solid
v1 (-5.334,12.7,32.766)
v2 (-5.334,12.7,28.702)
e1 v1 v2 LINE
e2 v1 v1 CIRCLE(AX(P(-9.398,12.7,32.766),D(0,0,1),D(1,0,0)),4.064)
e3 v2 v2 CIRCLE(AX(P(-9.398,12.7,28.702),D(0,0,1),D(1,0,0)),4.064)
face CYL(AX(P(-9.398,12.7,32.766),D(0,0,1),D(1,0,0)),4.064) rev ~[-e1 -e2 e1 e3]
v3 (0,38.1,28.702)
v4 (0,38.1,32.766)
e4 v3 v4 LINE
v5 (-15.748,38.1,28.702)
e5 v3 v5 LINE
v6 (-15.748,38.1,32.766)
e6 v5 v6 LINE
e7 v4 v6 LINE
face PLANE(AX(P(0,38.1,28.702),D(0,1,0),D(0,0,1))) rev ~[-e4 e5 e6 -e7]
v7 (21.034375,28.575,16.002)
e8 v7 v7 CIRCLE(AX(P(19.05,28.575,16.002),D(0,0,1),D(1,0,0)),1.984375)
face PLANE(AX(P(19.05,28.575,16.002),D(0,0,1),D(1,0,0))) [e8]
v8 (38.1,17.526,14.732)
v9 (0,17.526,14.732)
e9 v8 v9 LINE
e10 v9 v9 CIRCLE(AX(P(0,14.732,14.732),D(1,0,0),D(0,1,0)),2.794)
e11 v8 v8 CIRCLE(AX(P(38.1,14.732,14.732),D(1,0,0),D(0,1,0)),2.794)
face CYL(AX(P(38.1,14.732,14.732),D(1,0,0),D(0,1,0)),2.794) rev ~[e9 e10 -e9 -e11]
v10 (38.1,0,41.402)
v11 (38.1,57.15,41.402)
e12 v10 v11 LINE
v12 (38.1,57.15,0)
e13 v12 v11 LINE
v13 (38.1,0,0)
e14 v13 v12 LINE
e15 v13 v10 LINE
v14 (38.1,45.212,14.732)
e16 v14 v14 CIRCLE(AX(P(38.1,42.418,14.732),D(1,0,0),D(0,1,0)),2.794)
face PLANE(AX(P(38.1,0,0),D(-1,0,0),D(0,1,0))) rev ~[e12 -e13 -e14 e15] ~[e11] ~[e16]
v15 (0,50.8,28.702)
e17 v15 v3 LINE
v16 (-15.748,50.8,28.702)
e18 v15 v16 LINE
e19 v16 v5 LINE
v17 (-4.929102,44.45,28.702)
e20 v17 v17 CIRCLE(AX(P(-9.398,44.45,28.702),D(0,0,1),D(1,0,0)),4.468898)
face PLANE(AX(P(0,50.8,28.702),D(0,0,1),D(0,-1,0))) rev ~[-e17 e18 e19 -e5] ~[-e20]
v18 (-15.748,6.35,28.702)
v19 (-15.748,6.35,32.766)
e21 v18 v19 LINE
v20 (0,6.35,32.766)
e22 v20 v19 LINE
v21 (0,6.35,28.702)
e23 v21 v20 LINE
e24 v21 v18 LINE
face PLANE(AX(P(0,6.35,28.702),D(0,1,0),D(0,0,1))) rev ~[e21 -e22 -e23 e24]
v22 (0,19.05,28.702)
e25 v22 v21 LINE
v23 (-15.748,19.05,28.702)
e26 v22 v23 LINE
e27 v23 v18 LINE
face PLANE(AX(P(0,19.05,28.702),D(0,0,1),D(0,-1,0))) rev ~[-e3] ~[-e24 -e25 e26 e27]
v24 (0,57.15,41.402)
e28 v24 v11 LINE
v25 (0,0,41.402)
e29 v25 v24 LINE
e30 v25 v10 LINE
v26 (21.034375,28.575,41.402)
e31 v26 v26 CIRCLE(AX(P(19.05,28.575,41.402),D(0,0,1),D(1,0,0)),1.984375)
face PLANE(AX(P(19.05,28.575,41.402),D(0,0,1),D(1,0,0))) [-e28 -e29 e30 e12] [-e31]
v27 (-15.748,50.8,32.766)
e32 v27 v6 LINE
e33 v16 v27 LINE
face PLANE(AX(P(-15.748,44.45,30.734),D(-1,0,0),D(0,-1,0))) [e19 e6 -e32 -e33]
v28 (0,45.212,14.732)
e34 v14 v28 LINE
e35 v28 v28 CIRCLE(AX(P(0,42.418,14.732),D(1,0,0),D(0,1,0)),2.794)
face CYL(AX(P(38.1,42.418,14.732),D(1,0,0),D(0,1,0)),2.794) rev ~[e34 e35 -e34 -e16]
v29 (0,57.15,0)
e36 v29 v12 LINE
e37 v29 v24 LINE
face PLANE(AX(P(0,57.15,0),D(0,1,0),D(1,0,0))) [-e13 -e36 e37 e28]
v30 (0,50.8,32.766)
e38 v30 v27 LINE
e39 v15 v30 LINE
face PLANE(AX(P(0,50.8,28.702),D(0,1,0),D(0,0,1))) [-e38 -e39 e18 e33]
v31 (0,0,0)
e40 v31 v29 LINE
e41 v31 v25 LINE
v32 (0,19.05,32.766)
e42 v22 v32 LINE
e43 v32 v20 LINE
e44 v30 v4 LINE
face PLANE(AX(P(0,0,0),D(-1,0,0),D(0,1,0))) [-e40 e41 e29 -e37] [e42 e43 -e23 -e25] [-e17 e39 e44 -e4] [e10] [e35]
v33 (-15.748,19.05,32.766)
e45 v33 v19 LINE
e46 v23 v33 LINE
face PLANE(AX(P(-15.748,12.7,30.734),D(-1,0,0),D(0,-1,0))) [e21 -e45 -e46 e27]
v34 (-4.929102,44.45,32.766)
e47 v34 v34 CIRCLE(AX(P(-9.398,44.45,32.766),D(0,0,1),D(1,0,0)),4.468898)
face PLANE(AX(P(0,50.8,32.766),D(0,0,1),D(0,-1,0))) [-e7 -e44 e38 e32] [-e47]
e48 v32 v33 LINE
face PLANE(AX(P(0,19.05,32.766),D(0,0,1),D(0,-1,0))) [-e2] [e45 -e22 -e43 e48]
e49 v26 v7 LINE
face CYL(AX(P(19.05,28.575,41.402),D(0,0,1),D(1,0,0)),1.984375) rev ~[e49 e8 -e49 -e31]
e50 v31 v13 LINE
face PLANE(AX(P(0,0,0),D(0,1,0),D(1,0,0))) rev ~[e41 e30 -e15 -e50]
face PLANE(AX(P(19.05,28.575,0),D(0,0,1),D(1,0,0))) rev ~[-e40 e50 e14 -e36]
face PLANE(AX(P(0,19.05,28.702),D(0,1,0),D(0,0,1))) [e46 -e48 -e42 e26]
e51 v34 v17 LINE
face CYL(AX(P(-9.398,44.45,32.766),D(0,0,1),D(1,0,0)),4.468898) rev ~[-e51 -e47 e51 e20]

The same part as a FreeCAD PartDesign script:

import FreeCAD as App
import Part
import Sketcher

V = App.Vector
Q = App.Units.Quantity


def add_polygon(sketch, points):
    """Adds a closed chain of lines whose ends are joined by coincident constraints."""
    first, n = sketch.GeometryCount, len(points)
    for a, b in zip(points, points[1:] + points[:1]):
        sketch.addGeometry(Part.LineSegment(App.Vector(*a, 0), App.Vector(*b, 0)), False)
    for i in range(n):
        sketch.addConstraint(Sketcher.Constraint("Coincident", first + i, 2, first + (i + 1) % n, 1))

doc = App.newDocument("Part")
params = doc.addObject("Spreadsheet::Sheet", "Params")
for row, (alias, value) in enumerate([
    ("sketch1_width", "1.5 in"),
    ("sketch1_height", "2.25 in"),
    ("pad1_length", "1.63 in"),
    ("sketch2_diameter", "0.22 in"),
    ("sketch3_diameter", "0.15625 in"),
    ("pocket2_length", "1 in"),
    ("sketch4_width", "0.5 in"),
    ("sketch4_height", "0.16 in"),
    ("pad2_length", "0.62 in"),
    ("sketch5_diameter", "0.32 in"),
], start=1):
    params.set(f"A{row}", alias)
    params.set(f"B{row}", "=" + value)
    params.setAlias(f"B{row}", alias)

body = doc.addObject("PartDesign::Body", "Body")

sketch1 = body.newObject("Sketcher::SketchObject", "Sketch")
sketch1.AttachmentSupport = (doc.getObject("XY_Plane"), [""])
sketch1.MapMode = "FlatFace"
add_polygon(sketch1, [(0, 57), (0, 0), (38, 0), (38, 57)])
sketch1.addConstraint([
    Sketcher.Constraint("Vertical", 0),
    Sketcher.Constraint("Horizontal", 1),
    Sketcher.Constraint("Vertical", 2),
    Sketcher.Constraint("Horizontal", 3),
    Sketcher.Constraint("Coincident", 0, 2, -1, 1),
    Sketcher.Constraint("DistanceX", 1, 1, 1, 2, Q("1.5 in")),
    Sketcher.Constraint("DistanceY", 0, 2, 0, 1, Q("2.25 in")),
])
sketch1.setExpression("Constraints[9]", "Params.sketch1_width")
sketch1.setExpression("Constraints[10]", "Params.sketch1_height")
pad1 = body.newObject("PartDesign::Pad", "Pad")
pad1.Profile = sketch1
pad1.setExpression("Length", "Params.pad1_length")

sketch2 = body.newObject("Sketcher::SketchObject", "Sketch001")
sketch2.AttachmentSupport = (doc.getObject("YZ_Plane"), [""])
sketch2.MapMode = "FlatFace"
sketch2.AttachmentOffset = App.Placement(V(0, 0, 1.5 * 25.4), App.Rotation())
sketch2.addGeometry([
    Part.Circle(V(14.7, 14.7, 0), V(0, 0, 1), 2.8),
    Part.Circle(V(42.4, 14.7, 0), V(0, 0, 1), 2.8),
], False)
sketch2.addConstraint([
    Sketcher.Constraint("Equal", 0, 1),
    Sketcher.Constraint("Horizontal", 0, 3, 1, 3),
    Sketcher.Constraint("Diameter", 0, Q("0.22 in")),
    Sketcher.Constraint("DistanceX", -1, 1, 0, 3, Q("0.58 in")),
    Sketcher.Constraint("DistanceY", -1, 1, 0, 3, Q("0.58 in")),
    Sketcher.Constraint("DistanceX", -1, 1, 1, 3, Q("1.67 in")),
])
sketch2.setExpression("Constraints[2]", "Params.sketch2_diameter")
pocket1 = body.newObject("PartDesign::Pocket", "Pocket")
pocket1.Profile = sketch2
pocket1.Type = "ThroughAll"

sketch3 = body.newObject("Sketcher::SketchObject", "Sketch002")
sketch3.AttachmentSupport = (doc.getObject("XY_Plane"), [""])
sketch3.MapMode = "FlatFace"
sketch3.AttachmentOffset = App.Placement(V(0, 0, 1.63 * 25.4), App.Rotation())
sketch3.addGeometry(Part.Circle(V(19.1, 28.6, 0), V(0, 0, 1), 2), False)
sketch3.addConstraint([
    Sketcher.Constraint("Diameter", 0, Q("0.15625 in")),
    Sketcher.Constraint("DistanceX", -1, 1, 0, 3, Q("0.75 in")),
    Sketcher.Constraint("DistanceY", -1, 1, 0, 3, Q("1.125 in")),
])
sketch3.setExpression("Constraints[0]", "Params.sketch3_diameter")
pocket2 = body.newObject("PartDesign::Pocket", "Pocket001")
pocket2.Profile = sketch3
pocket2.setExpression("Length", "Params.pocket2_length")

sketch4 = body.newObject("Sketcher::SketchObject", "Sketch003")
sketch4.AttachmentSupport = (doc.getObject("YZ_Plane"), [""])
sketch4.MapMode = "FlatFace"
add_polygon(sketch4, [(50.8, 32.8), (50.8, 28.7), (38.1, 28.7), (38.1, 32.8)])
add_polygon(sketch4, [(19.1, 32.8), (19.1, 28.7), (6.3, 28.7), (6.3, 32.8)])
sketch4.addConstraint([
    Sketcher.Constraint("Vertical", 0),
    Sketcher.Constraint("Horizontal", 1),
    Sketcher.Constraint("Vertical", 2),
    Sketcher.Constraint("Horizontal", 3),
    Sketcher.Constraint("Vertical", 4),
    Sketcher.Constraint("Horizontal", 5),
    Sketcher.Constraint("Vertical", 6),
    Sketcher.Constraint("Horizontal", 7),
    Sketcher.Constraint("Horizontal", 1, 2, 4, 2),
    Sketcher.Constraint("Horizontal", 3, 2, 6, 2),
    Sketcher.Constraint("Equal", 3, 5),
    Sketcher.Constraint("DistanceX", 1, 2, 1, 1, Q("0.5 in")),
    Sketcher.Constraint("DistanceX", -1, 1, 0, 2, Q("2 in")),
    Sketcher.Constraint("DistanceY", 0, 2, 0, 1, Q("0.16 in")),
    Sketcher.Constraint("DistanceY", -1, 1, 0, 2, Q("1.13 in")),
    Sketcher.Constraint("DistanceX", -1, 1, 4, 2, Q("0.75 in")),
])
sketch4.setExpression("Constraints[19]", "Params.sketch4_width")
sketch4.setExpression("Constraints[21]", "Params.sketch4_height")
pad2 = body.newObject("PartDesign::Pad", "Pad001")
pad2.Profile = sketch4
pad2.setExpression("Length", "Params.pad2_length")
pad2.Reversed = True

sketch5 = body.newObject("Sketcher::SketchObject", "Sketch004")
sketch5.AttachmentSupport = (doc.getObject("XY_Plane"), [""])
sketch5.MapMode = "FlatFace"
sketch5.AttachmentOffset = App.Placement(V(0, 0, 1.29 * 25.4), App.Rotation())
sketch5.addGeometry([
    Part.Circle(V(-9.4, 44.5, 0), V(0, 0, 1), 4.5),
    Part.Circle(V(-9.4, 12.7, 0), V(0, 0, 1), 4.1),
], False)
sketch5.addConstraint([
    Sketcher.Constraint("Vertical", 0, 3, 1, 3),
    Sketcher.Constraint("Diameter", 1, Q("0.32 in")),
    Sketcher.Constraint("DistanceY", -1, 1, 1, 3, Q("0.5 in")),
    Sketcher.Constraint("DistanceX", 0, 3, -1, 1, Q("0.37 in")),
    Sketcher.Constraint("DistanceY", -1, 1, 0, 3, Q("1.75 in")),
    Sketcher.Constraint("Diameter", 0, 8.937796),
])
sketch5.setExpression("Constraints[1]", "Params.sketch5_diameter")
pocket3 = body.newObject("PartDesign::Pocket", "Pocket002")
pocket3.Profile = sketch5
pocket3.Type = "ThroughAll"

doc.recompute()
